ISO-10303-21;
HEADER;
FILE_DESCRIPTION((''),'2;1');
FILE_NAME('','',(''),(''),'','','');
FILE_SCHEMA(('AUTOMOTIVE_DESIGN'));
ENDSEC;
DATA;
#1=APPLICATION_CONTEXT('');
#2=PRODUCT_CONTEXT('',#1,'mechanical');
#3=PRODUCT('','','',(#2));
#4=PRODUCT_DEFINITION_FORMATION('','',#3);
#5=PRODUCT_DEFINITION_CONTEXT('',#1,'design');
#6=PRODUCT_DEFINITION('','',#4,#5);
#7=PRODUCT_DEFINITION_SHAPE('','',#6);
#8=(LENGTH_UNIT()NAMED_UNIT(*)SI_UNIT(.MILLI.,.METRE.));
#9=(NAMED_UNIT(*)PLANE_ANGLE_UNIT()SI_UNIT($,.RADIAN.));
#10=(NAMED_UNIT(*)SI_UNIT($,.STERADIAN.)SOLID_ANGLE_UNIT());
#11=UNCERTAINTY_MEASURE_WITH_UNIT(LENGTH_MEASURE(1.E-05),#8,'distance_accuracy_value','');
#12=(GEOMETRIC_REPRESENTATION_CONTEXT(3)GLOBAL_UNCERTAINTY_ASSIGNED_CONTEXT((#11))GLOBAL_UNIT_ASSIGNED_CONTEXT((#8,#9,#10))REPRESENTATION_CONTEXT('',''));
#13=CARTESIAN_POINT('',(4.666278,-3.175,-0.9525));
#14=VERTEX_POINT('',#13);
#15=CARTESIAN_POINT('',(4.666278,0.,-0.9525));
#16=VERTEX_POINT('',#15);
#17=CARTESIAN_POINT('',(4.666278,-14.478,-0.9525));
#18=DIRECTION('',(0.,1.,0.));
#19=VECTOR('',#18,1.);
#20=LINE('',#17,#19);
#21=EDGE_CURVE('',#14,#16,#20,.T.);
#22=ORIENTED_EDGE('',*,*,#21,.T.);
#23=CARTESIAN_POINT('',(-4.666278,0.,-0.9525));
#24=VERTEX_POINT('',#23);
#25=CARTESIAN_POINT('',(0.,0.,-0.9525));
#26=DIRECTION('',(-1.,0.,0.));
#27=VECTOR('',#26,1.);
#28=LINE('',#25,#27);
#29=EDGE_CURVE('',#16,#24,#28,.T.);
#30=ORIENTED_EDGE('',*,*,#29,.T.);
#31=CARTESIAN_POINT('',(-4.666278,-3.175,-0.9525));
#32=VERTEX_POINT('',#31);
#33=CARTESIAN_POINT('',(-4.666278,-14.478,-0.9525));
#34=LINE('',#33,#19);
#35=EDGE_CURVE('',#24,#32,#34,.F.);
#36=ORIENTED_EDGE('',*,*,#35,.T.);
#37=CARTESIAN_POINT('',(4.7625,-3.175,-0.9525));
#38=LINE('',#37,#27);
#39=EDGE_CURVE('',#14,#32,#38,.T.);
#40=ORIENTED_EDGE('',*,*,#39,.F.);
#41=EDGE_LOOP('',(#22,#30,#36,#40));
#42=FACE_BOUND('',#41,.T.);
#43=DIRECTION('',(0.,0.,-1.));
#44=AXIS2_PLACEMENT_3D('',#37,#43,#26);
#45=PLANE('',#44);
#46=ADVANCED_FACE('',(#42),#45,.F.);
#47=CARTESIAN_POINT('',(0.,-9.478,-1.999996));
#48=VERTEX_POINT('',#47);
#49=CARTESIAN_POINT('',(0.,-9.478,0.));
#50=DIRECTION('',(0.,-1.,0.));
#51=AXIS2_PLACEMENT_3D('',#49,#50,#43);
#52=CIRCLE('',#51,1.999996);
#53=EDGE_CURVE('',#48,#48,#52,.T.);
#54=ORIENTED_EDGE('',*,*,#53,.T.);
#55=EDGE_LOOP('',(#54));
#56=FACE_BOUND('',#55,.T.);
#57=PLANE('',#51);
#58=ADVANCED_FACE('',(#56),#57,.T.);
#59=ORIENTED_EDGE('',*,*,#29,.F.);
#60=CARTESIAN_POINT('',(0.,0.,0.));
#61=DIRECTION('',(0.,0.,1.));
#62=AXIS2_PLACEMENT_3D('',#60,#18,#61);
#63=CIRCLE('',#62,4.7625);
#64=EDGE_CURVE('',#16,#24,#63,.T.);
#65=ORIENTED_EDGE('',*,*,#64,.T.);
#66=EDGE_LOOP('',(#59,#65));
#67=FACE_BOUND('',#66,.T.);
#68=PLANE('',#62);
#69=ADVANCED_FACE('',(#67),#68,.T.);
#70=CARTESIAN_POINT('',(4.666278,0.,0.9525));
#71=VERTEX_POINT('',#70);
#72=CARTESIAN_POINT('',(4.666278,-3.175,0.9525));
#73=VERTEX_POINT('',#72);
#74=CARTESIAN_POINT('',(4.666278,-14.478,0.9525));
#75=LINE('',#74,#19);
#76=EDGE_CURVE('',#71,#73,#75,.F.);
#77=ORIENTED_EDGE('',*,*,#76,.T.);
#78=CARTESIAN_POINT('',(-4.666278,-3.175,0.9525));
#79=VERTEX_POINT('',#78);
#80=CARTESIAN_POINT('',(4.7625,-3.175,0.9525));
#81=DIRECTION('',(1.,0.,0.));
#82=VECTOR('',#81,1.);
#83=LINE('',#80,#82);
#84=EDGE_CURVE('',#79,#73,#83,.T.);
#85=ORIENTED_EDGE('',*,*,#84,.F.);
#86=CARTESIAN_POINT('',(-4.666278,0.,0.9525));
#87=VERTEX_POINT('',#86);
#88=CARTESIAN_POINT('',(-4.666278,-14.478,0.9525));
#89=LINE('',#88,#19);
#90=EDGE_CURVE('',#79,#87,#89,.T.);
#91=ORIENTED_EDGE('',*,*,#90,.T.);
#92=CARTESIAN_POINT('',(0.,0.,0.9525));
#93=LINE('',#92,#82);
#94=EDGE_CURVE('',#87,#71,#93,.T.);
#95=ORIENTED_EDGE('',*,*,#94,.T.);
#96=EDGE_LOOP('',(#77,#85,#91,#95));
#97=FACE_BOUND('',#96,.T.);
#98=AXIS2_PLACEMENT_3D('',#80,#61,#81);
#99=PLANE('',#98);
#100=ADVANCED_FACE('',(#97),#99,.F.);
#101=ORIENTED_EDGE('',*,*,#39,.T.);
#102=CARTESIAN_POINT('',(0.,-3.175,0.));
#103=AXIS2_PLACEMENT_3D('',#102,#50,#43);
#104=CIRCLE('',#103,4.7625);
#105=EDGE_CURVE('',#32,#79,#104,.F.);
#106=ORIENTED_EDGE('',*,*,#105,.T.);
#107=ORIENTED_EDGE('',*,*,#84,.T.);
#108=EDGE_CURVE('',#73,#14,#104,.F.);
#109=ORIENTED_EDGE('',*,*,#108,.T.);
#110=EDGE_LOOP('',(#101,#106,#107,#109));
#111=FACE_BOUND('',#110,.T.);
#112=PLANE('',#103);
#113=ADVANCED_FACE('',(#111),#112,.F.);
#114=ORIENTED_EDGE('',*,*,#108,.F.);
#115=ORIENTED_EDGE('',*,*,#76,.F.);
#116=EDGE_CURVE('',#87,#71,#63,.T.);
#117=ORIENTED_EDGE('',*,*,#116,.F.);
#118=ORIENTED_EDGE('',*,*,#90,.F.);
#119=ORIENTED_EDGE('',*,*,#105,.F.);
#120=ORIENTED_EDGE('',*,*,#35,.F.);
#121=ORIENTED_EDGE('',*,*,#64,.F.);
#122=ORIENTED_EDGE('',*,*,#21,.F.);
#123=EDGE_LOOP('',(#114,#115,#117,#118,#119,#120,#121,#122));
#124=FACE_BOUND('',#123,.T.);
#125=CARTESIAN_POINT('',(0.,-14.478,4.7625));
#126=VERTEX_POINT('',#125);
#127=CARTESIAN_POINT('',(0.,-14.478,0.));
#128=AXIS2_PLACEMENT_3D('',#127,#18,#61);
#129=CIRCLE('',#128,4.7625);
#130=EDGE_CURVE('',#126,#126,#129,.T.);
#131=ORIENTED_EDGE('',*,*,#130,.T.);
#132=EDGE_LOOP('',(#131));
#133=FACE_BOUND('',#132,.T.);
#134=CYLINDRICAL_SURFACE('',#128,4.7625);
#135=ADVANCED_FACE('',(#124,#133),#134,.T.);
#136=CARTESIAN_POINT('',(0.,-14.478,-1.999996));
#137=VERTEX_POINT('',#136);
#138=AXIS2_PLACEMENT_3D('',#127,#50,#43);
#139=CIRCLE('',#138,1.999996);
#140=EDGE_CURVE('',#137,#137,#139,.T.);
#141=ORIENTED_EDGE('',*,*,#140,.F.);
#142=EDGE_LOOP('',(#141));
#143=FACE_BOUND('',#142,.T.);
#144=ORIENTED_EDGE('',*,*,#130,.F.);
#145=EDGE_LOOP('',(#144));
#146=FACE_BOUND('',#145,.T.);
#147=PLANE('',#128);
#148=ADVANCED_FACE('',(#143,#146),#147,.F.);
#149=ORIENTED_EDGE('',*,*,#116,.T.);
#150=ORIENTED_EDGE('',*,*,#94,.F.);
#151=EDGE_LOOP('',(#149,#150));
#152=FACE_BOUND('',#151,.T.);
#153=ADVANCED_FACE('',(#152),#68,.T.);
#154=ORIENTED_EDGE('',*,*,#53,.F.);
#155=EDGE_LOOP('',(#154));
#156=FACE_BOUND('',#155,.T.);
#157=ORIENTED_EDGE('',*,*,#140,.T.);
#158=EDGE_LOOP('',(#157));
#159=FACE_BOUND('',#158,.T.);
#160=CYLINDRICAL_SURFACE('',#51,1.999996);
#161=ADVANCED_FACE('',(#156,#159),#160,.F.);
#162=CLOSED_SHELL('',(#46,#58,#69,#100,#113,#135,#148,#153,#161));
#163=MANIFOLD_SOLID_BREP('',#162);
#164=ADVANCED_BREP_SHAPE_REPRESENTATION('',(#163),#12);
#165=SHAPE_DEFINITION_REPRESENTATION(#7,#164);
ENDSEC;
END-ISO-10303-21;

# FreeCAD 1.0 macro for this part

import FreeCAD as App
import Part
import Sketcher
Q = App.Units.Quantity

doc = App.newDocument("Part")
params = doc.addObject("Spreadsheet::Sheet", "Params")
for row, (alias, value) in enumerate([
    ("sketch1_diameter", "0.375 in"),
    ("pad1_length", "0.57 in"),
    ("sketch2_width", "0.375 in"),
    ("sketch2_height", "0.075 in"),
    ("pocket1_length", "0.125 in"),
    ("pocket2_length", "5 mm"),
], start=1):
    params.set(f"A{row}", alias)
    params.set(f"B{row}", "=" + value)
    params.setAlias(f"B{row}", alias)

body = doc.addObject("PartDesign::Body", "Body")

# Sketch on XZ plane
sketch1 = body.newObject("Sketcher::SketchObject", "Sketch")
sketch1.AttachmentSupport = (doc.getObject("XZ_Plane"), [""])
sketch1.MapMode = "FlatFace"
sketch1.addGeometry(Part.Circle(App.Vector(0, 0, 0), App.Vector(0, 0, 1), 4.8), False)
sketch1.addConstraint([
    Sketcher.Constraint("Coincident", 0, 3, -1, 1),
    Sketcher.Constraint("Diameter", 0, Q("0.375 in")),
])
sketch1.setExpression("Constraints[1]", "Params.sketch1_diameter")
pad1 = body.newObject("PartDesign::Pad", "Pad")
pad1.Profile = sketch1
pad1.setExpression("Length", "Params.pad1_length")

# Sketch on XZ plane
sketch2 = body.newObject("Sketcher::SketchObject", "Sketch001")
sketch2.AttachmentSupport = (doc.getObject("XZ_Plane"), [""])
sketch2.MapMode = "FlatFace"
sketch2.addGeometry([
    Part.LineSegment(App.Vector(-4.8, -1, 0), App.Vector(-4.8, 1, 0)),
    Part.LineSegment(App.Vector(-4.8, 1, 0), App.Vector(4.8, 1, 0)),
    Part.LineSegment(App.Vector(4.8, 1, 0), App.Vector(4.8, -1, 0)),
    Part.LineSegment(App.Vector(4.8, -1, 0), App.Vector(-4.8, -1, 0)),
], False)
sketch2.addConstraint([
    Sketcher.Constraint("Coincident", 0, 2, 1, 1),
    Sketcher.Constraint("Coincident", 1, 2, 2, 1),
    Sketcher.Constraint("Coincident", 2, 2, 3, 1),
    Sketcher.Constraint("Coincident", 3, 2, 0, 1),
    Sketcher.Constraint("Vertical", 0),
    Sketcher.Constraint("Horizontal", 1),
    Sketcher.Constraint("Vertical", 2),
    Sketcher.Constraint("Horizontal", 3),
    Sketcher.Constraint("Symmetric", 0, 2, 2, 2, -1, 1),
    Sketcher.Constraint("DistanceX", 1, 1, 1, 2, Q("0.375 in")),
    Sketcher.Constraint("DistanceY", 0, 1, 0, 2, Q("0.075 in")),
])
sketch2.setExpression("Constraints[9]", "Params.sketch2_width")
sketch2.setExpression("Constraints[10]", "Params.sketch2_height")
pocket1 = body.newObject("PartDesign::Pocket", "Pocket")
pocket1.Profile = sketch2
pocket1.setExpression("Length", "Params.pocket1_length")
pocket1.Reversed = True

# Sketch on XZ plane
sketch3 = body.newObject("Sketcher::SketchObject", "Sketch002")
sketch3.AttachmentSupport = (doc.getObject("XZ_Plane"), [""])
sketch3.MapMode = "FlatFace"
sketch3.AttachmentOffset = App.Placement(App.Vector(0, 0, 0.57 * 25.4), App.Rotation())
sketch3.addGeometry(Part.Circle(App.Vector(0, 0, 0), App.Vector(0, 0, 1), 2), False)
sketch3.addConstraint([
    Sketcher.Constraint("Coincident", 0, 3, -1, 1),
    Sketcher.Constraint("Diameter", 0, Q("3.999992 mm")),
])
pocket2 = body.newObject("PartDesign::Pocket", "Pocket001")
pocket2.Profile = sketch3
pocket2.setExpression("Length", "Params.pocket2_length")

doc.recompute()
